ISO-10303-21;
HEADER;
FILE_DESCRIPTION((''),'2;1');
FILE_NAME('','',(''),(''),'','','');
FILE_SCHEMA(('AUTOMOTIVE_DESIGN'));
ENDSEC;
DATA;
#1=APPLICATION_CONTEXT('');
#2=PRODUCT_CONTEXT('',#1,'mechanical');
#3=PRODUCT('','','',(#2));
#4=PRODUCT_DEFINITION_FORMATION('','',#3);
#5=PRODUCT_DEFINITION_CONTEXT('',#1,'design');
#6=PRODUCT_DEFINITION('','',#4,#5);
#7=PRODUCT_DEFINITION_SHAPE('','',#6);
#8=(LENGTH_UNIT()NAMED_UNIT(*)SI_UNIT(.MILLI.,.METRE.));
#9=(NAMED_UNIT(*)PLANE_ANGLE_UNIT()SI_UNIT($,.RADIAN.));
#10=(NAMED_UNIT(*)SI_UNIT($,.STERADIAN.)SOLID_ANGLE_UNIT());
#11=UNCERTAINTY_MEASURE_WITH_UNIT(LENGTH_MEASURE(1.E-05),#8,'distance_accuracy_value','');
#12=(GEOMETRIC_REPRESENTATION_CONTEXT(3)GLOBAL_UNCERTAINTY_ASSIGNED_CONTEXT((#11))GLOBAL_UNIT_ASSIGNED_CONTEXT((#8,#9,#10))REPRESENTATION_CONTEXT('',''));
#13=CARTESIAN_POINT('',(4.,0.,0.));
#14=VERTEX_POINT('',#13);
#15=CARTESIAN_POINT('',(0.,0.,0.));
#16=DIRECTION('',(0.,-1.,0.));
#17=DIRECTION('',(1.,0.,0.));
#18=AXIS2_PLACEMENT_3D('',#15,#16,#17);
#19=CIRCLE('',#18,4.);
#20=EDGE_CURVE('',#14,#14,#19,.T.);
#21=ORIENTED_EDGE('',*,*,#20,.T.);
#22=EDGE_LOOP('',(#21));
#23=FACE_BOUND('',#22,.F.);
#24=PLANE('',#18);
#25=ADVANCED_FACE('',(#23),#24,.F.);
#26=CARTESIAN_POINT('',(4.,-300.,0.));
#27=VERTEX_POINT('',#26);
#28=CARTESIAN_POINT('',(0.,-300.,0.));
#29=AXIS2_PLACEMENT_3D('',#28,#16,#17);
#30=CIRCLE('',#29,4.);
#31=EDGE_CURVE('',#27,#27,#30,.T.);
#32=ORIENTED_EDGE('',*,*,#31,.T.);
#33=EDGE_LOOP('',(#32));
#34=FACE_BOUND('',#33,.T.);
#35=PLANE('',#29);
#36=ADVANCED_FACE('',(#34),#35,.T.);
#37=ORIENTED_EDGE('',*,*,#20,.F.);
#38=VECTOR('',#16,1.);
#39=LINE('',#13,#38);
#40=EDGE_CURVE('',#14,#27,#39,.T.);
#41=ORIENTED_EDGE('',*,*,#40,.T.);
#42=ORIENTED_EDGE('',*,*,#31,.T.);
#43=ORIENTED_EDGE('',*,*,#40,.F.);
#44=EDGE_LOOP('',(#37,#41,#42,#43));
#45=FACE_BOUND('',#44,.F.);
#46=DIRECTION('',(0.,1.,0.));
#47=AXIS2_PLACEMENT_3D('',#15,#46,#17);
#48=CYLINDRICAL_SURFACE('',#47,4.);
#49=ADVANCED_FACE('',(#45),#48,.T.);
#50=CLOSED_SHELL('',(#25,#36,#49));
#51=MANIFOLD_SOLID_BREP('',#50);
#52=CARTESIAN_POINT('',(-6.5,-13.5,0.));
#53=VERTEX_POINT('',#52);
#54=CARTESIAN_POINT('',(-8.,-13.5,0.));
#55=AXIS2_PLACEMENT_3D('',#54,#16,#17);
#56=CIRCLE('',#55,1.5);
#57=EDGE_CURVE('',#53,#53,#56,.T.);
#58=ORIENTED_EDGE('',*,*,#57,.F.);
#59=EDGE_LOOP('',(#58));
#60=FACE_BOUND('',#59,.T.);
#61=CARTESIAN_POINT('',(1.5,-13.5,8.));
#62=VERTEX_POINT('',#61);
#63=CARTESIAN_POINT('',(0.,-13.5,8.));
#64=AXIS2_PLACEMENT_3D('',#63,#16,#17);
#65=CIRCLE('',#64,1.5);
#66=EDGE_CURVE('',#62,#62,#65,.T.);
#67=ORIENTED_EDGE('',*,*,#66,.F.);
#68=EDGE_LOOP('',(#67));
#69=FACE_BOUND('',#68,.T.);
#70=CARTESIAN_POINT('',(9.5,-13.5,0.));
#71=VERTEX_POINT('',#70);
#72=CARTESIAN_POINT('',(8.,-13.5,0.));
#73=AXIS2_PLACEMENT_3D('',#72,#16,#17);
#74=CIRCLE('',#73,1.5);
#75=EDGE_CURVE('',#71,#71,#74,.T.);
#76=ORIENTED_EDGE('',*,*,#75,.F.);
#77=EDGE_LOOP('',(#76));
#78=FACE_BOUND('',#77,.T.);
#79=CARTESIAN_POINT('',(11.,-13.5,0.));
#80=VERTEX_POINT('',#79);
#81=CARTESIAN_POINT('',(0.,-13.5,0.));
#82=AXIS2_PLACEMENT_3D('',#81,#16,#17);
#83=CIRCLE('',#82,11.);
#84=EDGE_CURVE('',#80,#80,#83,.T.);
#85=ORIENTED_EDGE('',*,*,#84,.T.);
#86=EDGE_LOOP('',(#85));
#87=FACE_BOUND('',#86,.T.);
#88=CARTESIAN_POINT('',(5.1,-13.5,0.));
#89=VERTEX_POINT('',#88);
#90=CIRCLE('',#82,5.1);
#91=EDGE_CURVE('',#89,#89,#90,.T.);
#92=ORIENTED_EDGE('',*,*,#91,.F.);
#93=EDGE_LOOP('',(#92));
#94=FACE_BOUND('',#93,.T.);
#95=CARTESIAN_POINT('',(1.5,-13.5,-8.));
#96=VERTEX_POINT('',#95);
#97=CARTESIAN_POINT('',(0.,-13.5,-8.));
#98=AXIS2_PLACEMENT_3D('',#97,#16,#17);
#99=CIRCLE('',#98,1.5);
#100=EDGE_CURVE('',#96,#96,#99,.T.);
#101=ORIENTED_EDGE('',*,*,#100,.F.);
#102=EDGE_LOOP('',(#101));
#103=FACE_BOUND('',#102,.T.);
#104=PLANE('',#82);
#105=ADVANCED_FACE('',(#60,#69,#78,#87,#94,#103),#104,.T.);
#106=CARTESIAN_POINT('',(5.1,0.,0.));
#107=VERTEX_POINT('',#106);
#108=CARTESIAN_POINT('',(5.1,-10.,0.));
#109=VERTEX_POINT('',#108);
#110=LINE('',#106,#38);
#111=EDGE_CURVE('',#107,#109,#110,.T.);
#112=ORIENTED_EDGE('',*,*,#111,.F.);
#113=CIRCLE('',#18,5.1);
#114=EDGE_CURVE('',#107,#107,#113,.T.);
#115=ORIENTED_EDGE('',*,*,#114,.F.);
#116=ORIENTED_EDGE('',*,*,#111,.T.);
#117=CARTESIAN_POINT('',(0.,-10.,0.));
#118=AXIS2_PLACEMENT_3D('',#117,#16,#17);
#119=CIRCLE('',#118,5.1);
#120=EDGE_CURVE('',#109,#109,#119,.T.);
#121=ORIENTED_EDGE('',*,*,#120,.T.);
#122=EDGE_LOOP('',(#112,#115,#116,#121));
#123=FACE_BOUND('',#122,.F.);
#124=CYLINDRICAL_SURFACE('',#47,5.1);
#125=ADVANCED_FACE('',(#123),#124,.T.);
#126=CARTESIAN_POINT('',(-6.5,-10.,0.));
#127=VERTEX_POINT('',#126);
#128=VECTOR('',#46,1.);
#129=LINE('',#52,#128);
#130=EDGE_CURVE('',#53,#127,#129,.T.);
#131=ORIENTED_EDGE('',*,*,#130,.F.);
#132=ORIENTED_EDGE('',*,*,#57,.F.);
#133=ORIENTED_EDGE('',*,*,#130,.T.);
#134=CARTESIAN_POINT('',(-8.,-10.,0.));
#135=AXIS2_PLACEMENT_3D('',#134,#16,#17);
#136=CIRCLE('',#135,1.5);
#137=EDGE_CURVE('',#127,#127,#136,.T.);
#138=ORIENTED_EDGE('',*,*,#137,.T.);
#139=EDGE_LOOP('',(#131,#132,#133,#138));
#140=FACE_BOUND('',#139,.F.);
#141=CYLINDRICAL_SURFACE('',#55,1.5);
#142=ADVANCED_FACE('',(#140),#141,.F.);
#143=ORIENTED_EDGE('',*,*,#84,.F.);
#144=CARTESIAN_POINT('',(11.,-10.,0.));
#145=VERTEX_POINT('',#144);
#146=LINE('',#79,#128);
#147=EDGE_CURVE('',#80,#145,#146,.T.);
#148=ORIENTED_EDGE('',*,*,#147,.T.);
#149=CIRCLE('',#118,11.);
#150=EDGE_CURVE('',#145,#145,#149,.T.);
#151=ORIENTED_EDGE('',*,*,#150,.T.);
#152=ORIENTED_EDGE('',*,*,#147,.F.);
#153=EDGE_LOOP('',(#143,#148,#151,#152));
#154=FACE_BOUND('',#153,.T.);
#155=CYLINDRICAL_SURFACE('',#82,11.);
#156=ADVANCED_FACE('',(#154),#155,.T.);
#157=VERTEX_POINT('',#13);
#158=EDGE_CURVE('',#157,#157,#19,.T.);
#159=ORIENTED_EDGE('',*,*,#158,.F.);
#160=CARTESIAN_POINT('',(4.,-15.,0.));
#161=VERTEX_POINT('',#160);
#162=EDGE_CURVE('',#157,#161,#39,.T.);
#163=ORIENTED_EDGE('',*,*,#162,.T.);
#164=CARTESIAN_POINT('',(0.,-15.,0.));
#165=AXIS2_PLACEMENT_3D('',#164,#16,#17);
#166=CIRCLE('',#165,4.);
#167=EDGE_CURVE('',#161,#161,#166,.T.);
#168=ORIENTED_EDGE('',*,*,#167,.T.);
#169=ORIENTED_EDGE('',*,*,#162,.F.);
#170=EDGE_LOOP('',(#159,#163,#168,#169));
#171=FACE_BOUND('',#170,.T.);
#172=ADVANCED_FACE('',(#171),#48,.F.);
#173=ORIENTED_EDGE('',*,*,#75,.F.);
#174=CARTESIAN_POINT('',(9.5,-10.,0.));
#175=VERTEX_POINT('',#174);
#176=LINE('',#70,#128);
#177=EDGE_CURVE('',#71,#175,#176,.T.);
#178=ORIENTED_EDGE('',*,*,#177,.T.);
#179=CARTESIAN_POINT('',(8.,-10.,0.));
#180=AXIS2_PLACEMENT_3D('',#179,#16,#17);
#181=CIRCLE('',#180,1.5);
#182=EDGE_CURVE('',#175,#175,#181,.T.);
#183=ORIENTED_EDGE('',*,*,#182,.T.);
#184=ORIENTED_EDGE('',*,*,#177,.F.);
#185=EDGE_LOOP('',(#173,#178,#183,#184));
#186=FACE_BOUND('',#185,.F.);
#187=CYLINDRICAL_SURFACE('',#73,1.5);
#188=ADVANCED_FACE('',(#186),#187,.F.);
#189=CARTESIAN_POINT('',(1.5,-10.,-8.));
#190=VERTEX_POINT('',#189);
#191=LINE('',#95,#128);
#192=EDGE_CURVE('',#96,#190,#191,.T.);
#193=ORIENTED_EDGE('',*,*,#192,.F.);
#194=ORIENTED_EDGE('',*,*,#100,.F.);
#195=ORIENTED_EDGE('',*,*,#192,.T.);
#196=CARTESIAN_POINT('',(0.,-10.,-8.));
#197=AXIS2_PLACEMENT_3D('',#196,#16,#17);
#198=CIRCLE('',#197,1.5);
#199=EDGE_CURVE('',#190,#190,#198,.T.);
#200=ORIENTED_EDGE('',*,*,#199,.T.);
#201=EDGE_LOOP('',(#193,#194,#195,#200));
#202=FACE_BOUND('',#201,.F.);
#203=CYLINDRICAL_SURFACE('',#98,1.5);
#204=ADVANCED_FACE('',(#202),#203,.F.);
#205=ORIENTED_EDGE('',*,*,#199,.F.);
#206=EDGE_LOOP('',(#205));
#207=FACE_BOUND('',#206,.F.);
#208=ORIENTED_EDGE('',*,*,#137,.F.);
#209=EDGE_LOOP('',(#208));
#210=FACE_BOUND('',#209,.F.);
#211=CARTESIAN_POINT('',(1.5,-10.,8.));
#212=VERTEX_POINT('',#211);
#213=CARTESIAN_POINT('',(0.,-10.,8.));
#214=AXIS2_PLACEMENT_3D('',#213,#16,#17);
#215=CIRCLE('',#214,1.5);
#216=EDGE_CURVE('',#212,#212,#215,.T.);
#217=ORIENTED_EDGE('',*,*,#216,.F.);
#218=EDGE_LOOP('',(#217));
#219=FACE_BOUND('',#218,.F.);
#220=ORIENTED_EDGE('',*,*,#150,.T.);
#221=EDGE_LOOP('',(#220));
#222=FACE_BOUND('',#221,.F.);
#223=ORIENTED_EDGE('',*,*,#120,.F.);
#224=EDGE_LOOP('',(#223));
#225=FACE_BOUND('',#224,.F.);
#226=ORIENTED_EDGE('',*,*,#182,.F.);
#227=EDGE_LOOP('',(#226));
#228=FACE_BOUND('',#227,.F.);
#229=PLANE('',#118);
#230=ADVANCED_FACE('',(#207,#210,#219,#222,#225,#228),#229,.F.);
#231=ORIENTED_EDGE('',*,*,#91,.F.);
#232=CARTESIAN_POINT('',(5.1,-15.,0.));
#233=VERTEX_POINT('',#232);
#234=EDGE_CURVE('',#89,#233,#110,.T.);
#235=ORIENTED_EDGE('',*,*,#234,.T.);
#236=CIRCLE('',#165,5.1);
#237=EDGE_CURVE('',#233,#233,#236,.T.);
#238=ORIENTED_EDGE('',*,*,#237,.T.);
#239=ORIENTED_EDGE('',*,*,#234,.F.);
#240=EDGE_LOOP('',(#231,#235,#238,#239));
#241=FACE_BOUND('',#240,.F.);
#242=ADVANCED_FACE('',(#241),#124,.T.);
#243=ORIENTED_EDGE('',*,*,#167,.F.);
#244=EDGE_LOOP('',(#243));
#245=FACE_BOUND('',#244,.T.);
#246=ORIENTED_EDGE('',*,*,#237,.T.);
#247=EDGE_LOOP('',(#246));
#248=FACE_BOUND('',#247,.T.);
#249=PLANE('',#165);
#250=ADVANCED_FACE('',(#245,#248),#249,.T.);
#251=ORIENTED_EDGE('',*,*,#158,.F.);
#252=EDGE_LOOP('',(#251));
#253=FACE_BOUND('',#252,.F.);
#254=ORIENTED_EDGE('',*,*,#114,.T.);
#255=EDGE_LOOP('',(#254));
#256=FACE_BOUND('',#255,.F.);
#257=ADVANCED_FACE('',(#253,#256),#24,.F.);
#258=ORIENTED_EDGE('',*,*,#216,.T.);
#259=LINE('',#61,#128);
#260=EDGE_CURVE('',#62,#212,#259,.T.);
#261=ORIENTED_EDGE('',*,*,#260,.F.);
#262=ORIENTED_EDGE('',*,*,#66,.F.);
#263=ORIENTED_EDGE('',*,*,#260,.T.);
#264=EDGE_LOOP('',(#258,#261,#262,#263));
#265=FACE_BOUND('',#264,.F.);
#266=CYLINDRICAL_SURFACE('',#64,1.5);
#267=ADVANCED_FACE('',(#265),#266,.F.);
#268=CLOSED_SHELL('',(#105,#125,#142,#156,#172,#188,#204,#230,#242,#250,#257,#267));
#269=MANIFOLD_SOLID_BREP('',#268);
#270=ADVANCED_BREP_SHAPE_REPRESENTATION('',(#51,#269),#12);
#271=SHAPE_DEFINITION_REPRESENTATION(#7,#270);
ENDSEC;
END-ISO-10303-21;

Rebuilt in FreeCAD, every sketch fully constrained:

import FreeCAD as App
import Part
import Sketcher

V = App.Vector
Q = App.Units.Quantity

doc = App.newDocument("Part")
params = doc.addObject("Spreadsheet::Sheet", "Params")
for row, (alias, value) in enumerate([
    ("sketch1_diameter", "8 mm"),
    ("pad1_length", "300 mm"),
    ("sketch2_diameter", "8 mm"),
    ("sketch2_diameter2", "10.2 mm"),
    ("pad2_length", "15 mm"),
    ("sketch3_diameter", "22 mm"),
    ("sketch3_diameter2", "3 mm"),
    ("sketch3_diameter3", "10.2 mm"),
    ("pad3_length", "3.5 mm"),
], start=1):
    params.set(f"A{row}", alias)
    params.set(f"B{row}", "=" + value)
    params.setAlias(f"B{row}", alias)

body = doc.addObject("PartDesign::Body", "Body")

sketch1 = doc.addObject("Sketcher::SketchObject", "Sketch")
body.addObject(sketch1)
sketch1.AttachmentSupport = (doc.XZ_Plane, [""])
sketch1.MapMode = "FlatFace"
sketch1.addGeometry(Part.Circle(V(0, 0, 0), V(0, 0, 1), 4), False)
sketch1.addConstraint(Sketcher.Constraint("Coincident", 0, 3, -1, 1))
sketch1.addConstraint(Sketcher.Constraint("Diameter", 0, Q("8 mm")))
sketch1.setExpression("Constraints[1]", "Params.sketch1_diameter")
pad1 = doc.addObject("PartDesign::Pad", "Pad")
body.addObject(pad1)
pad1.Profile = sketch1
pad1.setExpression("Length", "Params.pad1_length")
body2 = doc.addObject("PartDesign::Body", "Body001")

sketch2 = doc.addObject("Sketcher::SketchObject", "Sketch001")
body2.addObject(sketch2)
sketch2.AttachmentSupport = (doc.getObject("XZ_Plane001"), [""])
sketch2.MapMode = "FlatFace"
sketch2.addGeometry(Part.Circle(V(0, 0, 0), V(0, 0, 1), 5.1), False)
sketch2.addGeometry(Part.Circle(V(0, 0, 0), V(0, 0, 1), 4), False)
sketch2.addConstraint(Sketcher.Constraint("Coincident", 0, 3, -1, 1))
sketch2.addConstraint(Sketcher.Constraint("Coincident", 1, 3, -1, 1))
sketch2.addConstraint(Sketcher.Constraint("Diameter", 1, Q("8 mm")))
sketch2.addConstraint(Sketcher.Constraint("Diameter", 0, Q("10.2 mm")))
sketch2.setExpression("Constraints[2]", "Params.sketch2_diameter")
sketch2.setExpression("Constraints[3]", "Params.sketch2_diameter2")
pad2 = doc.addObject("PartDesign::Pad", "Pad001")
body2.addObject(pad2)
pad2.Profile = sketch2
pad2.setExpression("Length", "Params.pad2_length")

sketch3 = doc.addObject("Sketcher::SketchObject", "Sketch002")
body2.addObject(sketch3)
sketch3.AttachmentSupport = (doc.getObject("XZ_Plane001"), [""])
sketch3.MapMode = "FlatFace"
sketch3.AttachmentOffset = App.Placement(V(0, 0, 13.5), App.Rotation())
sketch3.addGeometry(Part.Circle(V(0, 0, 0), V(0, 0, 1), 11), False)
sketch3.addGeometry(Part.Circle(V(0, -8, 0), V(0, 0, 1), 1.5), False)
sketch3.addGeometry(Part.Circle(V(-8, 0, 0), V(0, 0, 1), 1.5), False)
sketch3.addGeometry(Part.Circle(V(0, 0, 0), V(0, 0, 1), 5.1), False)
sketch3.addGeometry(Part.Circle(V(8, 0, 0), V(0, 0, 1), 1.5), False)
sketch3.addGeometry(Part.Circle(V(0, 8, 0), V(0, 0, 1), 1.5), False)
sketch3.addConstraint(Sketcher.Constraint("Coincident", 0, 3, -1, 1))
sketch3.addConstraint(Sketcher.Constraint("Coincident", 3, 3, -1, 1))
sketch3.addConstraint(Sketcher.Constraint("Equal", 1, 2))
sketch3.addConstraint(Sketcher.Constraint("Equal", 2, 4))
sketch3.addConstraint(Sketcher.Constraint("Equal", 4, 5))
sketch3.addConstraint(Sketcher.Constraint("Symmetric", 2, 3, 4, 3, -1, 1))
sketch3.addConstraint(Sketcher.Constraint("Symmetric", 1, 3, 5, 3, -1, 1))
sketch3.addConstraint(Sketcher.Constraint("PointOnObject", 1, 3, -2))
sketch3.addConstraint(Sketcher.Constraint("PointOnObject", 2, 3, -1))
sketch3.addConstraint(Sketcher.Constraint("Diameter", 0, Q("22 mm")))
sketch3.addConstraint(Sketcher.Constraint("Diameter", 1, Q("3 mm")))
sketch3.addConstraint(Sketcher.Constraint("Diameter", 3, Q("10.2 mm")))
sketch3.addConstraint(Sketcher.Constraint("DistanceY", 1, 3, -1, 1, Q("8 mm")))
sketch3.addConstraint(Sketcher.Constraint("DistanceX", 2, 3, -1, 1, Q("8 mm")))
sketch3.setExpression("Constraints[9]", "Params.sketch3_diameter")
sketch3.setExpression("Constraints[10]", "Params.sketch3_diameter2")
sketch3.setExpression("Constraints[11]", "Params.sketch3_diameter3")
pad3 = doc.addObject("PartDesign::Pad", "Pad002")
body2.addObject(pad3)
pad3.Profile = sketch3
pad3.setExpression("Length", "Params.pad3_length")
pad3.Reversed = True

doc.recompute()
